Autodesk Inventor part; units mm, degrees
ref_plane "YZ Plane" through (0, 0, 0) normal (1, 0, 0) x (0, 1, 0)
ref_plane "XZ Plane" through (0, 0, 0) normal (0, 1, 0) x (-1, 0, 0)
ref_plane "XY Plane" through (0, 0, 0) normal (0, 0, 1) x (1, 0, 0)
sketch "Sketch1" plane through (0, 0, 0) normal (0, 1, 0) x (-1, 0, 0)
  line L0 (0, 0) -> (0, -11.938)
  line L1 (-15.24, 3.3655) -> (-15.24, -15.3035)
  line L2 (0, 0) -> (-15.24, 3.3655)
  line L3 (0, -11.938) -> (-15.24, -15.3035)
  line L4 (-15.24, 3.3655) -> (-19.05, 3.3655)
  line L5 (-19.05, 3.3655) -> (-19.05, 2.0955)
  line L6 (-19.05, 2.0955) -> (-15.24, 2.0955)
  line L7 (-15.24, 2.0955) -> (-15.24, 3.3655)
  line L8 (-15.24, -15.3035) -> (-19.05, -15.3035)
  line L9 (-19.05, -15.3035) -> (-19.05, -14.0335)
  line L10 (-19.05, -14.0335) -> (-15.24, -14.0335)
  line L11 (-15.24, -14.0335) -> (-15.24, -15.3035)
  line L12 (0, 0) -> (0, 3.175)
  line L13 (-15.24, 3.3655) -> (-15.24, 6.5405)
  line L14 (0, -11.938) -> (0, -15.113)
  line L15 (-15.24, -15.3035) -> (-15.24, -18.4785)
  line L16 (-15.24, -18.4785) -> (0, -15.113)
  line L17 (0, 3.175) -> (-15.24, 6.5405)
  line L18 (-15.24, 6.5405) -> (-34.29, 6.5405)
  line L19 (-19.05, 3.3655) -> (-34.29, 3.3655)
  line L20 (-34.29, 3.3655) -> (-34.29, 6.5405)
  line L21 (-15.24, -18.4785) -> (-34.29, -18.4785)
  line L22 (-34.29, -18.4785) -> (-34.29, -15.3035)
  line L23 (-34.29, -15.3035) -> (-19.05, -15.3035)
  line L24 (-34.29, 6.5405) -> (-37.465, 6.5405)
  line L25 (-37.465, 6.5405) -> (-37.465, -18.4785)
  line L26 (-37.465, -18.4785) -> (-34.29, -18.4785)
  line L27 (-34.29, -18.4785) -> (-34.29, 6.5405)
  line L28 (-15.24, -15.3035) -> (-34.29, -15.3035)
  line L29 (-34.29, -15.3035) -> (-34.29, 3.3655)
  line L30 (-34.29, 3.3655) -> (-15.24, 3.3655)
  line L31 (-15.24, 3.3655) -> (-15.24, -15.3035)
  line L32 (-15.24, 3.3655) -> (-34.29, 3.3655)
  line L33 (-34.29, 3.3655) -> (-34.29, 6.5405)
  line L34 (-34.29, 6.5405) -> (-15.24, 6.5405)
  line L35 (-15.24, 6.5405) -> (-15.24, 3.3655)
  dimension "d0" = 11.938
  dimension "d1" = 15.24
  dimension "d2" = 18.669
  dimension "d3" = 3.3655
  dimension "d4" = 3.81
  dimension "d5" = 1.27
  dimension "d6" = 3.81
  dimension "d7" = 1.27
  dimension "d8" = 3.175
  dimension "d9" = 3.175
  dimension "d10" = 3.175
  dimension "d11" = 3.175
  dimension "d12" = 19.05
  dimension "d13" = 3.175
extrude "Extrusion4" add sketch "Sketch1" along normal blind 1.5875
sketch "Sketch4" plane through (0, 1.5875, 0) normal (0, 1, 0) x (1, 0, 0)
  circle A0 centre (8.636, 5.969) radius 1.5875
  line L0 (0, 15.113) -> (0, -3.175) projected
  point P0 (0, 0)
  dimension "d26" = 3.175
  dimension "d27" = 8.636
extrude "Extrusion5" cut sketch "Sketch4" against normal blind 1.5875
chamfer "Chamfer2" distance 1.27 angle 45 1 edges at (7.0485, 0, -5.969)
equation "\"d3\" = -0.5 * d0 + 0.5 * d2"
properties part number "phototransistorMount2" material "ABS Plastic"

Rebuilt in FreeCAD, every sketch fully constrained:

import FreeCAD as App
import Part
import Sketcher

V = App.Vector
Q = App.Units.Quantity


def edges_at(feature, points):
    """Names of the edges that pass closest to the given points."""
    edges = feature.Shape.Edges
    near = lambda p: min(range(len(edges)), key=lambda i: edges[i].distToShape(Part.Vertex(*p))[0])
    return sorted({f"Edge{near(p) + 1}" for p in points})

doc = App.newDocument("Part")
body = doc.addObject("PartDesign::Body", "Body")

# Sketch on XZ plane
sketch1 = body.newObject("Sketcher::SketchObject", "Sketch")
sketch1.AttachmentSupport = (doc.getObject("XZ_Plane"), [""])
sketch1.MapMode = "FlatFace"
sketch1.addGeometry([
    Part.LineSegment(V(0, 3.175, 0), V(15.24, 6.5405, 0)),  # 0
    Part.LineSegment(V(15.24, 6.5405, 0), V(37.465, 6.5405, 0)),  # 1
    Part.LineSegment(V(37.465, 6.5405, 0), V(37.465, -18.4785, 0)),  # 2
    Part.LineSegment(V(37.465, -18.4785, 0), V(15.24, -18.4785, 0)),  # 3
    Part.LineSegment(V(15.24, -18.4785, 0), V(0, -15.113, 0)),  # 4
    Part.LineSegment(V(0, -15.113, 0), V(0, 3.175, 0)),  # 5
], False)
sketch1.addConstraint([
    Sketcher.Constraint("Coincident", 0, 2, 1, 1),
    Sketcher.Constraint("Coincident", 1, 2, 2, 1),
    Sketcher.Constraint("Coincident", 2, 2, 3, 1),
    Sketcher.Constraint("Coincident", 3, 2, 4, 1),
    Sketcher.Constraint("Coincident", 4, 2, 5, 1),
    Sketcher.Constraint("Coincident", 5, 2, 0, 1),
    Sketcher.Constraint("Horizontal", 1),
    Sketcher.Constraint("Vertical", 2),
    Sketcher.Constraint("Horizontal", 3),
    Sketcher.Constraint("Vertical", 5),
    Sketcher.Constraint("PointOnObject", 4, 2, -2),
    Sketcher.Constraint("Vertical", 0, 2, 3, 2),
    Sketcher.Constraint("Equal", 0, 4),
    Sketcher.Constraint("DistanceX", -1, 1, 0, 2, Q("0.6 in")),
    Sketcher.Constraint("DistanceY", -1, 1, 5, 2, Q("0.125 in")),
    Sketcher.Constraint("DistanceY", 5, 1, 5, 2, Q("0.72 in")),
    Sketcher.Constraint("DistanceY", 3, 2, 4, 2, Q("0.1325 in")),
    Sketcher.Constraint("DistanceX", 1, 1, 1, 2, Q("0.875 in")),
])
pad1 = body.newObject("PartDesign::Pad", "Pad")
pad1.Profile = sketch1
pad1.Length = Q("0.0625 in")
pad1.Reversed = True

# Sketch on XZ plane
sketch2 = body.newObject("Sketcher::SketchObject", "Sketch001")
sketch2.AttachmentSupport = (doc.getObject("XZ_Plane"), [""])
sketch2.MapMode = "FlatFace"
sketch2.AttachmentOffset = App.Placement(V(0, 0, -0.0625 * 25.4), App.Rotation())
sketch2.addGeometry(Part.Circle(V(8.636, -5.969, 0), V(0, 0, 1), 1.5875), False)
sketch2.addConstraint([
    Sketcher.Constraint("Diameter", 0, Q("0.125 in")),
    Sketcher.Constraint("DistanceX", -1, 1, 0, 3, Q("0.34 in")),
    Sketcher.Constraint("DistanceY", 0, 3, -1, 1, Q("0.235 in")),
])
pocket1 = body.newObject("PartDesign::Pocket", "Pocket")
pocket1.Profile = sketch2
pocket1.Length = Q("0.0625 in")
pocket1.Reversed = True
doc.recompute()

chamfer = body.newObject("PartDesign::Chamfer", "Chamfer")
chamfer.Base = (pocket1, edges_at(pocket1, [(7.048, 0, -5.969)]))
chamfer.Size = Q("0.05 in")

doc.recompute()
